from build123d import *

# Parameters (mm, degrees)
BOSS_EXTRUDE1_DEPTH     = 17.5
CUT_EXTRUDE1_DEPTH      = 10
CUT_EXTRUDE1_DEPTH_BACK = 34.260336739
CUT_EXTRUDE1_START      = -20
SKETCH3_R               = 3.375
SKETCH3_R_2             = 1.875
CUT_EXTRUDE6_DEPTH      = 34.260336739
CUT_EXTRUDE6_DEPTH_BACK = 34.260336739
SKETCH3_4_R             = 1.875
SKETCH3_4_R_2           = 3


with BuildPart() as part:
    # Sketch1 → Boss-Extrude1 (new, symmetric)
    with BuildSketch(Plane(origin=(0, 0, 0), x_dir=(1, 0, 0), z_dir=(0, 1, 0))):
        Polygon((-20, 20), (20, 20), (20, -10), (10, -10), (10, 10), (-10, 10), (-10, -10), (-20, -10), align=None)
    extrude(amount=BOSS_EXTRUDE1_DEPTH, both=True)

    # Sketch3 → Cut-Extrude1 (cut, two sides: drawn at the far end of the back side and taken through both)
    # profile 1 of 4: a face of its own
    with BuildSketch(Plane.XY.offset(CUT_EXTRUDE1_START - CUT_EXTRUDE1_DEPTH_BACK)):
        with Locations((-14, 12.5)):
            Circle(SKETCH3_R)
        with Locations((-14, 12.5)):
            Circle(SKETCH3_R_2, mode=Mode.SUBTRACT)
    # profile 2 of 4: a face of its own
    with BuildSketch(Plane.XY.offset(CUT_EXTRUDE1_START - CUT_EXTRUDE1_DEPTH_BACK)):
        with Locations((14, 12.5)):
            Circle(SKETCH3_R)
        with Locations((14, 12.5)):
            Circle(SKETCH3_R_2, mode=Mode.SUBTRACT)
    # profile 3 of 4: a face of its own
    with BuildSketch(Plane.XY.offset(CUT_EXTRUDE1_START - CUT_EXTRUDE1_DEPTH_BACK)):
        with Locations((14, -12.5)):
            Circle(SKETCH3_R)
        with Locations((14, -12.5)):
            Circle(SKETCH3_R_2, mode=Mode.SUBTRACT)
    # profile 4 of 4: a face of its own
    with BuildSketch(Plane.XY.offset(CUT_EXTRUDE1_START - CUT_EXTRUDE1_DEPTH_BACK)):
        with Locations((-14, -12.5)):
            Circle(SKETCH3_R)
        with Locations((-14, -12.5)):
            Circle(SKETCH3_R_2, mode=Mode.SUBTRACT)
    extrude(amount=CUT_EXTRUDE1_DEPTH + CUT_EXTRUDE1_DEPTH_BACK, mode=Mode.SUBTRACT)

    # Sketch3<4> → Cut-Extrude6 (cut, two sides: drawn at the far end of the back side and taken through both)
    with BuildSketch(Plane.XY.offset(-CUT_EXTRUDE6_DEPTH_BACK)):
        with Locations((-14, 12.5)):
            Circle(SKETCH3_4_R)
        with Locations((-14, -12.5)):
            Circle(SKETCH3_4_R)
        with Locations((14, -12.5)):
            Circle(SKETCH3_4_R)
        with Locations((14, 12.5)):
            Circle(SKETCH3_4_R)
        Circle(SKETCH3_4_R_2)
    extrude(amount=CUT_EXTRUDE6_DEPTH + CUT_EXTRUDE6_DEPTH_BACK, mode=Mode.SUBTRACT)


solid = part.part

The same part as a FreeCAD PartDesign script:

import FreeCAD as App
import Part
import Sketcher

doc = App.newDocument("Part")
params = doc.addObject("Spreadsheet::Sheet", "Params")
for row, (alias, value) in enumerate([
    ("sketch1_width", "40 mm"),
    ("sketch1_width2", "10 mm"),
    ("sketch1_height", "30 mm"),
    ("pad1_length", "35 mm"),
    ("sketch2_diameter", "6.75 mm"),
    ("sketch2_diameter2", "3.75 mm"),
    ("pocket1_length", "10 mm"),
    ("pocket1_length2", "34.260337 mm"),
    ("sketch3_diameter", "6 mm"),
    ("sketch3_diameter2", "3.75 mm"),
], start=1):
    params.set(f"A{row}", alias)
    params.set(f"B{row}", "=" + value)
    params.setAlias(f"B{row}", alias)

body = doc.addObject("PartDesign::Body", "Body")

# Sketch on XZ plane
sketch1 = doc.addObject("Sketcher::SketchObject", "Sketch")
body.addObject(sketch1)
sketch1.AttachmentSupport = (doc.XZ_Plane, [""])
sketch1.MapMode = "FlatFace"
sketch1.addGeometry([
    Part.LineSegment(App.Vector(20, -20, 0), App.Vector(-20, -20, 0)),  # 0
    Part.LineSegment(App.Vector(-20, -20, 0), App.Vector(-20, 10, 0)),  # 1
    Part.LineSegment(App.Vector(-20, 10, 0), App.Vector(-10, 10, 0)),  # 2
    Part.LineSegment(App.Vector(-10, 10, 0), App.Vector(-10, -10, 0)),  # 3
    Part.LineSegment(App.Vector(-10, -10, 0), App.Vector(10, -10, 0)),  # 4
    Part.LineSegment(App.Vector(10, -10, 0), App.Vector(10, 10, 0)),  # 5
    Part.LineSegment(App.Vector(10, 10, 0), App.Vector(20, 10, 0)),  # 6
    Part.LineSegment(App.Vector(20, 10, 0), App.Vector(20, -20, 0)),  # 7
], False)
sketch1.addConstraint([
    Sketcher.Constraint("Coincident", 0, 2, 1, 1),
    Sketcher.Constraint("Coincident", 1, 2, 2, 1),
    Sketcher.Constraint("Coincident", 2, 2, 3, 1),
    Sketcher.Constraint("Coincident", 3, 2, 4, 1),
    Sketcher.Constraint("Coincident", 4, 2, 5, 1),
    Sketcher.Constraint("Coincident", 5, 2, 6, 1),
    Sketcher.Constraint("Coincident", 6, 2, 7, 1),
    Sketcher.Constraint("Coincident", 7, 2, 0, 1),
    Sketcher.Constraint("Horizontal", 0),
    Sketcher.Constraint("Vertical", 1),
    Sketcher.Constraint("Horizontal", 2),
    Sketcher.Constraint("Vertical", 3),
    Sketcher.Constraint("Horizontal", 4),
    Sketcher.Constraint("Vertical", 5),
    Sketcher.Constraint("Horizontal", 6),
    Sketcher.Constraint("Vertical", 7),
    Sketcher.Constraint("Symmetric", 2, 2, 4, 2, -1, 1),
    Sketcher.Constraint("Symmetric", 1, 2, 6, 2, -2),
    Sketcher.Constraint("Equal", 4, 3),
    Sketcher.Constraint("DistanceX", 0, 2, 0, 1, 40.0),
    Sketcher.Constraint("DistanceX", 2, 1, 2, 2, 10.0),
    Sketcher.Constraint("DistanceY", 1, 1, 1, 2, 30.0),
])
sketch1.setExpression("Constraints[19]", "Params.sketch1_width")
sketch1.setExpression("Constraints[20]", "Params.sketch1_width2")
sketch1.setExpression("Constraints[21]", "Params.sketch1_height")
pad1 = doc.addObject("PartDesign::Pad", "Pad")
body.addObject(pad1)
pad1.Profile = sketch1
pad1.setExpression("Length", "Params.pad1_length")
pad1.Midplane = True

# Sketch on XY plane
sketch2 = doc.addObject("Sketcher::SketchObject", "Sketch001")
body.addObject(sketch2)
sketch2.AttachmentSupport = (doc.XY_Plane, [""])
sketch2.MapMode = "FlatFace"
sketch2.AttachmentOffset = App.Placement(App.Vector(0, 0, -20), App.Rotation())
sketch2.addGeometry([
    Part.Circle(App.Vector(-14, 12.5, 0), App.Vector(0, 0, 1), 3.375),  # 0
    Part.Circle(App.Vector(-14, 12.5, 0), App.Vector(0, 0, 1), 1.875),  # 1
    Part.Circle(App.Vector(14, 12.5, 0), App.Vector(0, 0, 1), 3.375),  # 2
    Part.Circle(App.Vector(14, 12.5, 0), App.Vector(0, 0, 1), 1.875),  # 3
    Part.Circle(App.Vector(14, -12.5, 0), App.Vector(0, 0, 1), 3.375),  # 4
    Part.Circle(App.Vector(14, -12.5, 0), App.Vector(0, 0, 1), 1.875),  # 5
    Part.Circle(App.Vector(-14, -12.5, 0), App.Vector(0, 0, 1), 3.375),  # 6
    Part.Circle(App.Vector(-14, -12.5, 0), App.Vector(0, 0, 1), 1.875),  # 7
], False)
sketch2.addConstraint([
    Sketcher.Constraint("Coincident", 1, 3, 0, 3),
    Sketcher.Constraint("Coincident", 3, 3, 2, 3),
    Sketcher.Constraint("Coincident", 5, 3, 4, 3),
    Sketcher.Constraint("Coincident", 7, 3, 6, 3),
    Sketcher.Constraint("Equal", 0, 2),
    Sketcher.Constraint("Equal", 1, 3),
    Sketcher.Constraint("Equal", 2, 4),
    Sketcher.Constraint("Equal", 3, 5),
    Sketcher.Constraint("Equal", 4, 6),
    Sketcher.Constraint("Equal", 5, 7),
    Sketcher.Constraint("Symmetric", 0, 3, 4, 3, -1, 1),
    Sketcher.Constraint("Symmetric", 2, 3, 6, 3, -1, 1),
    Sketcher.Constraint("Symmetric", 0, 3, 2, 3, -2),
    Sketcher.Constraint("Diameter", 0, 6.75),
    Sketcher.Constraint("Diameter", 1, 3.75),
    Sketcher.Constraint("DistanceX", 0, 3, -1, 1, 14.0),
    Sketcher.Constraint("DistanceY", 4, 3, 2, 3, 25.0),
])
sketch2.setExpression("Constraints[13]", "Params.sketch2_diameter")
sketch2.setExpression("Constraints[14]", "Params.sketch2_diameter2")
pocket1 = doc.addObject("PartDesign::Pocket", "Pocket")
body.addObject(pocket1)
pocket1.Profile = sketch2
pocket1.Type = "TwoLengths"
pocket1.setExpression("Length", "Params.pocket1_length")
pocket1.setExpression("Length2", "Params.pocket1_length2")
pocket1.Reversed = True

# Sketch on XY plane
sketch3 = doc.addObject("Sketcher::SketchObject", "Sketch002")
body.addObject(sketch3)
sketch3.AttachmentSupport = (doc.XY_Plane, [""])
sketch3.MapMode = "FlatFace"
sketch3.addGeometry([
    Part.Circle(App.Vector(-14, 12.5, 0), App.Vector(0, 0, 1), 1.875),  # 0
    Part.Circle(App.Vector(-14, -12.5, 0), App.Vector(0, 0, 1), 1.875),  # 1
    Part.Circle(App.Vector(14, -12.5, 0), App.Vector(0, 0, 1), 1.875),  # 2
    Part.Circle(App.Vector(14, 12.5, 0), App.Vector(0, 0, 1), 1.875),  # 3
    Part.Circle(App.Vector(0, 0, 0), App.Vector(0, 0, 1), 3),  # 4
], False)
sketch3.addConstraint([
    Sketcher.Constraint("Coincident", 4, 3, -1, 1),
    Sketcher.Constraint("Equal", 0, 1),
    Sketcher.Constraint("Equal", 1, 2),
    Sketcher.Constraint("Equal", 2, 3),
    Sketcher.Constraint("Symmetric", 0, 3, 2, 3, -1, 1),
    Sketcher.Constraint("Symmetric", 1, 3, 3, 3, -1, 1),
    Sketcher.Constraint("Symmetric", 1, 3, 2, 3, -2),
    Sketcher.Constraint("Diameter", 4, 6.0),
    Sketcher.Constraint("Diameter", 0, 3.75),
    Sketcher.Constraint("DistanceX", 0, 3, -1, 1, 14.0),
    Sketcher.Constraint("DistanceY", 1, 3, 0, 3, 25.0),
])
sketch3.setExpression("Constraints[7]", "Params.sketch3_diameter")
sketch3.setExpression("Constraints[8]", "Params.sketch3_diameter2")
pocket2 = doc.addObject("PartDesign::Pocket", "Pocket001")
body.addObject(pocket2)
pocket2.Profile = sketch3
pocket2.Type = "ThroughAll"
pocket2.Midplane = True

doc.recompute()
